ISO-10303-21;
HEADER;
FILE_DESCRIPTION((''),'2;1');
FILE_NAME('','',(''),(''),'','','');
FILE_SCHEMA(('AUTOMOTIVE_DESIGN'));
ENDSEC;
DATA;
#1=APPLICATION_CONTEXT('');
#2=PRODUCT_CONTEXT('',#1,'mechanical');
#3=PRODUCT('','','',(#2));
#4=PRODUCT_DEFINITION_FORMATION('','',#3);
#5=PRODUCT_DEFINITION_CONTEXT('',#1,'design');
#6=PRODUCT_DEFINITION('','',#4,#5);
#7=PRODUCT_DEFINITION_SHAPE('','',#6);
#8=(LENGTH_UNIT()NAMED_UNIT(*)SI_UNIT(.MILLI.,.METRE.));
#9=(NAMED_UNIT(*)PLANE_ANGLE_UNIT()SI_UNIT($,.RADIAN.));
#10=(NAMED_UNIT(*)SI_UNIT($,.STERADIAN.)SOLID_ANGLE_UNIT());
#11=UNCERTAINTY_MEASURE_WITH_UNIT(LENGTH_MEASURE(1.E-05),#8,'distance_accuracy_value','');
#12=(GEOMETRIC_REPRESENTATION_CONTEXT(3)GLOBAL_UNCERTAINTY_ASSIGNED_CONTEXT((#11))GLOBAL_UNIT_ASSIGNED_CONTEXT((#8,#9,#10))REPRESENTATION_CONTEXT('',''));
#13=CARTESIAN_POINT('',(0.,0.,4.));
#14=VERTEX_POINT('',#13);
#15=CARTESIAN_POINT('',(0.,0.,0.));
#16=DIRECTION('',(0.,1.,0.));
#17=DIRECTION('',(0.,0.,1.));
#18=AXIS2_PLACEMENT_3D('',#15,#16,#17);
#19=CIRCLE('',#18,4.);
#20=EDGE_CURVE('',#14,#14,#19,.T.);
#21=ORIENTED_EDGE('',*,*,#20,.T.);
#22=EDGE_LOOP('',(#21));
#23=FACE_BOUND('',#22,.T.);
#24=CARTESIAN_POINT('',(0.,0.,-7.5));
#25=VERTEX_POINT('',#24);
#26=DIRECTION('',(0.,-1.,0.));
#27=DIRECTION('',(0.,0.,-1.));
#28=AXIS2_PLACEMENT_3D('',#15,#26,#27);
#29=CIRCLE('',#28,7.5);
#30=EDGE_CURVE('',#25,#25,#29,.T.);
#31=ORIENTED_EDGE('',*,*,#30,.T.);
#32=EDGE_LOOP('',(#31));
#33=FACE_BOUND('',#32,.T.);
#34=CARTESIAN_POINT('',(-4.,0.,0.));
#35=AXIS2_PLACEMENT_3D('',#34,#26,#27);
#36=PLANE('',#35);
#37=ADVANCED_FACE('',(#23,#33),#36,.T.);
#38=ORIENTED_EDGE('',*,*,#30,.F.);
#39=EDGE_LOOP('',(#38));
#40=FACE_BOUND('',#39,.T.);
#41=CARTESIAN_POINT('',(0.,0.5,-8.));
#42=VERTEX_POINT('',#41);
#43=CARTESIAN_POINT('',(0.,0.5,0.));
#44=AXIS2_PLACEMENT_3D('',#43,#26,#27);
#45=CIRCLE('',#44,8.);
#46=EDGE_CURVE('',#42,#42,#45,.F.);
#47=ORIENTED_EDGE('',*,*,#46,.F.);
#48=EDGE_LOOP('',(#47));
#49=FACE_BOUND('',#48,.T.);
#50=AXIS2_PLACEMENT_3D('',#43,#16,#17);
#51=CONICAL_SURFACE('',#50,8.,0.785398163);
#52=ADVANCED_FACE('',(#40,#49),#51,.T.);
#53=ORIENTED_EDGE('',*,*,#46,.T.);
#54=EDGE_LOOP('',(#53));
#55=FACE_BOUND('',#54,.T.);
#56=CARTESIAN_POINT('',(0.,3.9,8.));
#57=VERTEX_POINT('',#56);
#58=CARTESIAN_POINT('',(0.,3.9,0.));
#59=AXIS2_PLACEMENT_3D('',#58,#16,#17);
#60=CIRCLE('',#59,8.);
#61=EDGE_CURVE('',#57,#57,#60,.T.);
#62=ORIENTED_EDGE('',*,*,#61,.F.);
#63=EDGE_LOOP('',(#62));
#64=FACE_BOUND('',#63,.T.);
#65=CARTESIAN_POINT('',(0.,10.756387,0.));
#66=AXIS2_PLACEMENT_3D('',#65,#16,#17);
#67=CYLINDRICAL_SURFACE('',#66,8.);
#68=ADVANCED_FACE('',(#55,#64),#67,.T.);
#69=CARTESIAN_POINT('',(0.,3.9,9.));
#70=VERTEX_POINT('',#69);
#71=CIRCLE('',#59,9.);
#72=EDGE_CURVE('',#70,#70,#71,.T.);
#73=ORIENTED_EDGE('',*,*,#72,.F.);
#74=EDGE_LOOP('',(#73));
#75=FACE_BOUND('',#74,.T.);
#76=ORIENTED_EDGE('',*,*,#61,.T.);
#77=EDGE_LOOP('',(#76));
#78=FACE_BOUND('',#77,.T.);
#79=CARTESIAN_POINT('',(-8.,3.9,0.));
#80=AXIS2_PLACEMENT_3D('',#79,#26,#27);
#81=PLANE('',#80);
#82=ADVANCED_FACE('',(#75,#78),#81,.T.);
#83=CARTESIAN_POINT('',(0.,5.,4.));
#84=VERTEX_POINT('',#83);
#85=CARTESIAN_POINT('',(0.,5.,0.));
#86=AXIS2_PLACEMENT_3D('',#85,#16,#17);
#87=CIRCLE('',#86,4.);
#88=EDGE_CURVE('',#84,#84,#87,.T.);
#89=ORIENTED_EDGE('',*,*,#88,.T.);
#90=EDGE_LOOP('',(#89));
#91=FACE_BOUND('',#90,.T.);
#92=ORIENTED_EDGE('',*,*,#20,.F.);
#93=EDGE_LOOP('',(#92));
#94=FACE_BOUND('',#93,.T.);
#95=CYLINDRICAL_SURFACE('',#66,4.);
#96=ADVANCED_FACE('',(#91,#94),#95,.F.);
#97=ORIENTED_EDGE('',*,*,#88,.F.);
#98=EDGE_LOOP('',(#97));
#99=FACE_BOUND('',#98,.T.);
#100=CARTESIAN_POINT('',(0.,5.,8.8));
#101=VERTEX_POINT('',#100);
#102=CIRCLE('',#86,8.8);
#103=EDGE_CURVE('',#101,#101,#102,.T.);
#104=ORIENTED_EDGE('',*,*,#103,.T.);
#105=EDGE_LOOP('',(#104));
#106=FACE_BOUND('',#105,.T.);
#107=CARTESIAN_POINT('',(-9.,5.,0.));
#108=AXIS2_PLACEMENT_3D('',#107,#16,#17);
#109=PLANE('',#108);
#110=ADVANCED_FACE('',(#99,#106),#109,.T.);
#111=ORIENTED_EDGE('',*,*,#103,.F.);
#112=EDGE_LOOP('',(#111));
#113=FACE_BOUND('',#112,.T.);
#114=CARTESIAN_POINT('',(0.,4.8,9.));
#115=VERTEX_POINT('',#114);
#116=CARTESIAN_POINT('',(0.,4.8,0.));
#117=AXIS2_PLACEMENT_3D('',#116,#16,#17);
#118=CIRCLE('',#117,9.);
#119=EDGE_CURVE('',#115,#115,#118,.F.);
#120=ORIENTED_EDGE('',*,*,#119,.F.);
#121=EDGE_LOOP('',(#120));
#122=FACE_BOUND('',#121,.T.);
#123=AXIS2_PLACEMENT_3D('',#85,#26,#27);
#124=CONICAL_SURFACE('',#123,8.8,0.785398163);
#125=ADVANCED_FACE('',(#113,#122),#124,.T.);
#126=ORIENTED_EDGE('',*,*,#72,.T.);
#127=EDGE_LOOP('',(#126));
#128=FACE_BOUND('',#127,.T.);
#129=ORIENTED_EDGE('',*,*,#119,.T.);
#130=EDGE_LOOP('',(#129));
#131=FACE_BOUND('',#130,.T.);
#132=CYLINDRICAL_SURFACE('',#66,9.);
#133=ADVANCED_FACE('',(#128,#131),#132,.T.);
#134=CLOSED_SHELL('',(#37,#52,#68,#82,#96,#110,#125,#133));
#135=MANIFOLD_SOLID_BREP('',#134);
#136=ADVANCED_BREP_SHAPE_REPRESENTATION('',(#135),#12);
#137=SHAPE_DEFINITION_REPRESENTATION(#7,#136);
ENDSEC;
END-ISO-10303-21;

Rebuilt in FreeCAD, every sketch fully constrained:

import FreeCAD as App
import Part
import Sketcher
from FreeCAD import Vector


def edges_at(feature, points):
    """Names of the edges that pass closest to the given points."""
    edges = feature.Shape.Edges
    near = lambda p: min(range(len(edges)), key=lambda i: edges[i].distToShape(Part.Vertex(*p))[0])
    return sorted({f"Edge{near(p) + 1}" for p in points})


def add_polygon(sketch, points):
    """Adds a closed chain of lines whose ends are joined by coincident constraints."""
    first, n = sketch.GeometryCount, len(points)
    for a, b in zip(points, points[1:] + points[:1]):
        sketch.addGeometry(Part.LineSegment(App.Vector(*a, 0), App.Vector(*b, 0)), False)
    for i in range(n):
        sketch.addConstraint(Sketcher.Constraint("Coincident", first + i, 2, first + (i + 1) % n, 1))

doc = App.newDocument("Part")
body = doc.addObject("PartDesign::Body", "Body")

sketch1 = body.newObject("Sketcher::SketchObject", "Sketch")
sketch1.AttachmentSupport = (doc.getObject("XY_Plane"), [""])
sketch1.MapMode = "FlatFace"
add_polygon(sketch1, [(-8, 0), (-4, 0), (-4, 5), (-9, 5), (-9, 3.9), (-8, 3.9)])
sketch1.addConstraint([
    Sketcher.Constraint("Horizontal", 0),
    Sketcher.Constraint("Vertical", 1),
    Sketcher.Constraint("Horizontal", 2),
    Sketcher.Constraint("Vertical", 3),
    Sketcher.Constraint("Horizontal", 4),
    Sketcher.Constraint("Vertical", 5),
    Sketcher.Constraint("PointOnObject", 0, 2, -1),
    Sketcher.Constraint("Equal", 2, 1),
    Sketcher.Constraint("DistanceX", 0, 1, 0, 2, 4.0),
    Sketcher.Constraint("DistanceX", 2, 2, 2, 1, 5.0),
    Sketcher.Constraint("DistanceY", 3, 2, 3, 1, 1.1),
    Sketcher.Constraint("DistanceX", 0, 2, -1, 1, 4.0),
])
revolution = body.newObject("PartDesign::Revolution", "Revolution")
revolution.Profile = sketch1
revolution.ReferenceAxis = (sketch1, ["V_Axis"])
revolution.Angle = 360
doc.recompute()

chamfer = body.newObject("PartDesign::Chamfer", "Chamfer")
chamfer.Base = (revolution, edges_at(revolution, [(0, 0, -8)]))
chamfer.Size = 0.5
doc.recompute()

chamfer2 = body.newObject("PartDesign::Chamfer", "Chamfer001")
chamfer2.Base = (chamfer, edges_at(chamfer, [(0, 5, -9)]))
chamfer2.Size = 0.2

doc.recompute()
